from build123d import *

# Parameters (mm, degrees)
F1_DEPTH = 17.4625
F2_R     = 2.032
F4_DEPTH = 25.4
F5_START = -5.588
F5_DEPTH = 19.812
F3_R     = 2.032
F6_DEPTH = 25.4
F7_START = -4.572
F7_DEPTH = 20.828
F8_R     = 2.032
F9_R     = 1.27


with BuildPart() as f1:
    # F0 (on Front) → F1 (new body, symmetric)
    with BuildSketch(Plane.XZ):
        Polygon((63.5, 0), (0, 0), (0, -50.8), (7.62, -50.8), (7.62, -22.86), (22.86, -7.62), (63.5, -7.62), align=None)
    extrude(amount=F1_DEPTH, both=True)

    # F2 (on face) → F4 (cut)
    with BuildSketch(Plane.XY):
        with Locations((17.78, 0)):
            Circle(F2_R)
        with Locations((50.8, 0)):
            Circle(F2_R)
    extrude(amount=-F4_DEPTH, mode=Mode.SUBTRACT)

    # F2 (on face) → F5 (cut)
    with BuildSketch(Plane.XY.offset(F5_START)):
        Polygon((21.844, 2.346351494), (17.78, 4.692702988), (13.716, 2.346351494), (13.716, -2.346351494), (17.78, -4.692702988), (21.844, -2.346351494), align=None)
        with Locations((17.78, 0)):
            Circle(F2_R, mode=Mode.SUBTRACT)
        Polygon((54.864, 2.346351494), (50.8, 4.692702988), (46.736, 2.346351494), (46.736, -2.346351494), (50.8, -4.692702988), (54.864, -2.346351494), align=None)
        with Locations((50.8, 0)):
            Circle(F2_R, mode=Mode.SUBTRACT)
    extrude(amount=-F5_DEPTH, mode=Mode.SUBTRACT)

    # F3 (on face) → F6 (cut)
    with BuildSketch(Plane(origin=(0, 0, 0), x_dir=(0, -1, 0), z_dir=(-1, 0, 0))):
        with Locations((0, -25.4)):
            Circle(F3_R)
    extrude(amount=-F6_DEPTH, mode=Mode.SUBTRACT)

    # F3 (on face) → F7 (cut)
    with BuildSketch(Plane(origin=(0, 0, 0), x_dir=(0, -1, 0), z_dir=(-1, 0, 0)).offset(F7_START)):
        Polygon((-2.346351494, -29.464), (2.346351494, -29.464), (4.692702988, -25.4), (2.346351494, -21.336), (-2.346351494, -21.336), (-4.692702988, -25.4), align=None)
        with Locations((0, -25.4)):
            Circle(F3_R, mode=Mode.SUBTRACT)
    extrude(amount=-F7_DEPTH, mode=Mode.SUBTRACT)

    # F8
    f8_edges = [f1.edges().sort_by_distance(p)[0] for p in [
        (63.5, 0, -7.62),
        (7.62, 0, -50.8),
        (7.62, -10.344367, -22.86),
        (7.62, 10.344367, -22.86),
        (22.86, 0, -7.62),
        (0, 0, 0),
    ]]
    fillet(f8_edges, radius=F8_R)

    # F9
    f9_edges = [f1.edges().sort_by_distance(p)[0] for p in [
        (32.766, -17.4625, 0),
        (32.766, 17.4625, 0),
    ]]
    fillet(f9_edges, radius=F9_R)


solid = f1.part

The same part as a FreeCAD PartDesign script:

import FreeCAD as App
import Part
import Sketcher
Q = App.Units.Quantity


def edges_at(feature, points):
    """Names of the edges that pass closest to the given points."""
    edges = feature.Shape.Edges
    near = lambda p: min(range(len(edges)), key=lambda i: edges[i].distToShape(Part.Vertex(*p))[0])
    return sorted({f"Edge{near(p) + 1}" for p in points})

doc = App.newDocument("Part")
body = doc.addObject("PartDesign::Body", "Body")

# Sketch on XZ plane
sketch1 = body.newObject("Sketcher::SketchObject", "Sketch")
sketch1.AttachmentSupport = (doc.getObject("XZ_Plane"), [""])
sketch1.MapMode = "FlatFace"
sketch1.addGeometry([
    Part.LineSegment(App.Vector(63.5, 0, 0), App.Vector(0, 0, 0)),  # 0
    Part.LineSegment(App.Vector(0, 0, 0), App.Vector(0, -50.8, 0)),  # 1
    Part.LineSegment(App.Vector(0, -50.8, 0), App.Vector(7.62, -50.8, 0)),  # 2
    Part.LineSegment(App.Vector(7.62, -50.8, 0), App.Vector(7.62, -22.86, 0)),  # 3
    Part.LineSegment(App.Vector(7.62, -22.86, 0), App.Vector(22.86, -7.62, 0)),  # 4
    Part.LineSegment(App.Vector(22.86, -7.62, 0), App.Vector(63.5, -7.62, 0)),  # 5
    Part.LineSegment(App.Vector(63.5, -7.62, 0), App.Vector(63.5, 0, 0)),  # 6
], False)
sketch1.addConstraint([
    Sketcher.Constraint("Coincident", 0, 2, 1, 1),
    Sketcher.Constraint("Coincident", 1, 2, 2, 1),
    Sketcher.Constraint("Coincident", 2, 2, 3, 1),
    Sketcher.Constraint("Coincident", 3, 2, 4, 1),
    Sketcher.Constraint("Coincident", 4, 2, 5, 1),
    Sketcher.Constraint("Coincident", 5, 2, 6, 1),
    Sketcher.Constraint("Coincident", 6, 2, 0, 1),
    Sketcher.Constraint("Horizontal", 0),
    Sketcher.Constraint("Vertical", 1),
    Sketcher.Constraint("Horizontal", 2),
    Sketcher.Constraint("Vertical", 3),
    Sketcher.Constraint("Horizontal", 5),
    Sketcher.Constraint("Vertical", 6),
    Sketcher.Constraint("Coincident", 0, 2, -1, 1),
    Sketcher.Constraint("Equal", 2, 6),
    Sketcher.Constraint("DistanceY", 1, 2, 1, 1, Q("2 in")),
    Sketcher.Constraint("DistanceX", 0, 2, 0, 1, Q("2.5 in")),
    Sketcher.Constraint("DistanceX", 2, 1, 2, 2, Q("0.3 in")),
    Sketcher.Constraint("DistanceX", 5, 1, 5, 2, Q("1.6 in")),
    Sketcher.Constraint("DistanceY", 3, 1, 3, 2, Q("1.1 in")),
])
pad1 = body.newObject("PartDesign::Pad", "Pad")
pad1.Profile = sketch1
pad1.Length = Q("1.375 in")
pad1.Midplane = True

# Sketch on XY plane
sketch2 = body.newObject("Sketcher::SketchObject", "Sketch001")
sketch2.AttachmentSupport = (doc.getObject("XY_Plane"), [""])
sketch2.MapMode = "FlatFace"
sketch2.addGeometry([
    Part.Circle(App.Vector(17.78, 0, 0), App.Vector(0, 0, 1), 2.032),
    Part.Circle(App.Vector(50.8, 0, 0), App.Vector(0, 0, 1), 2.032),
], False)
sketch2.addConstraint([
    Sketcher.Constraint("Equal", 0, 1),
    Sketcher.Constraint("PointOnObject", 0, 3, -1),
    Sketcher.Constraint("PointOnObject", 1, 3, -1),
    Sketcher.Constraint("Diameter", 0, Q("0.16 in")),
    Sketcher.Constraint("DistanceX", -1, 1, 1, 3, Q("2 in")),
    Sketcher.Constraint("DistanceX", -1, 1, 0, 3, Q("0.7 in")),
])
pocket1 = body.newObject("PartDesign::Pocket", "Pocket")
pocket1.Profile = sketch2
pocket1.Length = Q("1 in")

# Sketch on XY plane
sketch3 = body.newObject("Sketcher::SketchObject", "Sketch002")
sketch3.AttachmentSupport = (doc.getObject("XY_Plane"), [""])
sketch3.MapMode = "FlatFace"
sketch3.AttachmentOffset = App.Placement(App.Vector(0, 0, -0.22 * 25.4), App.Rotation())
sketch3.addGeometry([
    Part.LineSegment(App.Vector(21.844, 2.346351, 0), App.Vector(17.78, 4.692703, 0)),  # 0
    Part.LineSegment(App.Vector(17.78, 4.692703, 0), App.Vector(13.716, 2.346351, 0)),  # 1
    Part.LineSegment(App.Vector(13.716, 2.346351, 0), App.Vector(13.716, -2.346351, 0)),  # 2
    Part.LineSegment(App.Vector(13.716, -2.346351, 0), App.Vector(17.78, -4.692703, 0)),  # 3
    Part.LineSegment(App.Vector(17.78, -4.692703, 0), App.Vector(21.844, -2.346351, 0)),  # 4
    Part.LineSegment(App.Vector(21.844, -2.346351, 0), App.Vector(21.844, 2.346351, 0)),  # 5
    Part.Circle(App.Vector(17.78, 0, 0), App.Vector(0, 0, 1), 2.032),  # 6
    Part.LineSegment(App.Vector(54.864, 2.346351, 0), App.Vector(50.8, 4.692703, 0)),  # 7
    Part.LineSegment(App.Vector(50.8, 4.692703, 0), App.Vector(46.736, 2.346351, 0)),  # 8
    Part.LineSegment(App.Vector(46.736, 2.346351, 0), App.Vector(46.736, -2.346351, 0)),  # 9
    Part.LineSegment(App.Vector(46.736, -2.346351, 0), App.Vector(50.8, -4.692703, 0)),  # 10
    Part.LineSegment(App.Vector(50.8, -4.692703, 0), App.Vector(54.864, -2.346351, 0)),  # 11
    Part.LineSegment(App.Vector(54.864, -2.346351, 0), App.Vector(54.864, 2.346351, 0)),  # 12
    Part.Circle(App.Vector(50.8, 0, 0), App.Vector(0, 0, 1), 2.032),  # 13
], False)
sketch3.addConstraint([
    Sketcher.Constraint("Coincident", 0, 2, 1, 1),
    Sketcher.Constraint("Coincident", 1, 2, 2, 1),
    Sketcher.Constraint("Coincident", 2, 2, 3, 1),
    Sketcher.Constraint("Coincident", 3, 2, 4, 1),
    Sketcher.Constraint("Coincident", 4, 2, 5, 1),
    Sketcher.Constraint("Coincident", 5, 2, 0, 1),
    Sketcher.Constraint("Coincident", 7, 2, 8, 1),
    Sketcher.Constraint("Coincident", 8, 2, 9, 1),
    Sketcher.Constraint("Coincident", 9, 2, 10, 1),
    Sketcher.Constraint("Coincident", 10, 2, 11, 1),
    Sketcher.Constraint("Coincident", 11, 2, 12, 1),
    Sketcher.Constraint("Coincident", 12, 2, 7, 1),
    Sketcher.Constraint("Vertical", 2),
    Sketcher.Constraint("Vertical", 5),
    Sketcher.Constraint("Vertical", 9),
    Sketcher.Constraint("Vertical", 12),
    Sketcher.Constraint("Equal", 6, 13),
    Sketcher.Constraint("Symmetric", 0, 2, 3, 2, -1),
    Sketcher.Constraint("Symmetric", 7, 2, 10, 2, -1),
    Sketcher.Constraint("PointOnObject", 6, 3, -1),
    Sketcher.Constraint("PointOnObject", 13, 3, -1),
    Sketcher.Constraint("Parallel", 0, 3),
    Sketcher.Constraint("Parallel", 1, 4),
    Sketcher.Constraint("Parallel", 3, 7),
    Sketcher.Constraint("Parallel", 4, 8),
    Sketcher.Constraint("Parallel", 7, 10),
    Sketcher.Constraint("Parallel", 8, 11),
    Sketcher.Constraint("Horizontal", 2, 2, 4, 2),
    Sketcher.Constraint("Horizontal", 1, 2, 5, 2),
    Sketcher.Constraint("Horizontal", 0, 2, 7, 2),
    Sketcher.Constraint("Horizontal", 5, 2, 8, 2),
    Sketcher.Constraint("Horizontal", 9, 2, 11, 2),
    Sketcher.Constraint("Vertical", 6, 3, 0, 2),
    Sketcher.Constraint("Vertical", 13, 3, 7, 2),
    Sketcher.Constraint("Diameter", 6, Q("0.16 in")),
    Sketcher.Constraint("DistanceX", -1, 1, 13, 3, Q("2 in")),
    Sketcher.Constraint("Angle", 0, Q("150 deg")),
    Sketcher.Constraint("DistanceX", -1, 1, 6, 3, Q("0.7 in")),
    Sketcher.Constraint("DistanceX", -1, 1, 1, 2, Q("0.54 in")),
    Sketcher.Constraint("DistanceY", 2, 2, 2, 1, Q("4.692703 mm")),
])
pocket2 = body.newObject("PartDesign::Pocket", "Pocket001")
pocket2.Profile = sketch3
pocket2.Length = Q("0.78 in")

# Sketch on YZ plane
sketch4 = body.newObject("Sketcher::SketchObject", "Sketch003")
sketch4.AttachmentSupport = (doc.getObject("YZ_Plane"), [""])
sketch4.MapMode = "FlatFace"
sketch4.addGeometry(Part.Circle(App.Vector(0, -25.4, 0), App.Vector(0, 0, 1), 2.032), False)
sketch4.addConstraint([
    Sketcher.Constraint("PointOnObject", 0, 3, -2),
    Sketcher.Constraint("Diameter", 0, Q("0.16 in")),
    Sketcher.Constraint("DistanceY", 0, 3, -1, 1, Q("1 in")),
])
pocket3 = body.newObject("PartDesign::Pocket", "Pocket002")
pocket3.Profile = sketch4
pocket3.Length = Q("1 in")
pocket3.Reversed = True

# Sketch on YZ plane
sketch5 = body.newObject("Sketcher::SketchObject", "Sketch004")
sketch5.AttachmentSupport = (doc.getObject("YZ_Plane"), [""])
sketch5.MapMode = "FlatFace"
sketch5.AttachmentOffset = App.Placement(App.Vector(0, 0, 0.18 * 25.4), App.Rotation())
sketch5.addGeometry([
    Part.LineSegment(App.Vector(2.346351, -29.464, 0), App.Vector(-2.346351, -29.464, 0)),  # 0
    Part.LineSegment(App.Vector(-2.346351, -29.464, 0), App.Vector(-4.692703, -25.4, 0)),  # 1
    Part.LineSegment(App.Vector(-4.692703, -25.4, 0), App.Vector(-2.346351, -21.336, 0)),  # 2
    Part.LineSegment(App.Vector(-2.346351, -21.336, 0), App.Vector(2.346351, -21.336, 0)),  # 3
    Part.LineSegment(App.Vector(2.346351, -21.336, 0), App.Vector(4.692703, -25.4, 0)),  # 4
    Part.LineSegment(App.Vector(4.692703, -25.4, 0), App.Vector(2.346351, -29.464, 0)),  # 5
    Part.Circle(App.Vector(0, -25.4, 0), App.Vector(0, 0, 1), 2.032),  # 6
], False)
sketch5.addConstraint([
    Sketcher.Constraint("Coincident", 0, 2, 1, 1),
    Sketcher.Constraint("Coincident", 1, 2, 2, 1),
    Sketcher.Constraint("Coincident", 2, 2, 3, 1),
    Sketcher.Constraint("Coincident", 3, 2, 4, 1),
    Sketcher.Constraint("Coincident", 4, 2, 5, 1),
    Sketcher.Constraint("Coincident", 5, 2, 0, 1),
    Sketcher.Constraint("Horizontal", 0),
    Sketcher.Constraint("Horizontal", 3),
    Sketcher.Constraint("Symmetric", 1, 2, 4, 2, -2),
    Sketcher.Constraint("PointOnObject", 6, 3, -2),
    Sketcher.Constraint("Parallel", 1, 4),
    Sketcher.Constraint("Parallel", 2, 5),
    Sketcher.Constraint("Horizontal", 6, 3, 1, 2),
    Sketcher.Constraint("Vertical", 0, 2, 2, 2),
    Sketcher.Constraint("Vertical", 3, 2, 5, 2),
    Sketcher.Constraint("Diameter", 6, Q("0.16 in")),
    Sketcher.Constraint("DistanceY", 6, 3, -1, 1, Q("1 in")),
    Sketcher.Constraint("Angle", 1, Q("120 deg")),
    Sketcher.Constraint("DistanceY", 0, 2, -1, 1, Q("1.16 in")),
    Sketcher.Constraint("DistanceX", 0, 2, 0, 1, Q("4.692703 mm")),
])
pocket4 = body.newObject("PartDesign::Pocket", "Pocket003")
pocket4.Profile = sketch5
pocket4.Length = Q("0.82 in")
pocket4.Reversed = True
doc.recompute()

fillet = body.newObject("PartDesign::Fillet", "Fillet")
fillet.Base = (pocket4, edges_at(pocket4, [
    (63.5, 0, -7.62),
    (7.62, 0, -50.8),
    (7.62, -10.344, -22.86),
    (7.62, 10.344, -22.86),
    (22.86, 0, -7.62),
    (0, 0, 0),
]))
fillet.Radius = Q("0.08 in")
doc.recompute()

fillet2 = body.newObject("PartDesign::Fillet", "Fillet001")
fillet2.Base = (fillet, edges_at(fillet, [(32.766, -17.462, 0), (32.766, 17.462, 0)]))
fillet2.Radius = Q("0.05 in")

doc.recompute()
